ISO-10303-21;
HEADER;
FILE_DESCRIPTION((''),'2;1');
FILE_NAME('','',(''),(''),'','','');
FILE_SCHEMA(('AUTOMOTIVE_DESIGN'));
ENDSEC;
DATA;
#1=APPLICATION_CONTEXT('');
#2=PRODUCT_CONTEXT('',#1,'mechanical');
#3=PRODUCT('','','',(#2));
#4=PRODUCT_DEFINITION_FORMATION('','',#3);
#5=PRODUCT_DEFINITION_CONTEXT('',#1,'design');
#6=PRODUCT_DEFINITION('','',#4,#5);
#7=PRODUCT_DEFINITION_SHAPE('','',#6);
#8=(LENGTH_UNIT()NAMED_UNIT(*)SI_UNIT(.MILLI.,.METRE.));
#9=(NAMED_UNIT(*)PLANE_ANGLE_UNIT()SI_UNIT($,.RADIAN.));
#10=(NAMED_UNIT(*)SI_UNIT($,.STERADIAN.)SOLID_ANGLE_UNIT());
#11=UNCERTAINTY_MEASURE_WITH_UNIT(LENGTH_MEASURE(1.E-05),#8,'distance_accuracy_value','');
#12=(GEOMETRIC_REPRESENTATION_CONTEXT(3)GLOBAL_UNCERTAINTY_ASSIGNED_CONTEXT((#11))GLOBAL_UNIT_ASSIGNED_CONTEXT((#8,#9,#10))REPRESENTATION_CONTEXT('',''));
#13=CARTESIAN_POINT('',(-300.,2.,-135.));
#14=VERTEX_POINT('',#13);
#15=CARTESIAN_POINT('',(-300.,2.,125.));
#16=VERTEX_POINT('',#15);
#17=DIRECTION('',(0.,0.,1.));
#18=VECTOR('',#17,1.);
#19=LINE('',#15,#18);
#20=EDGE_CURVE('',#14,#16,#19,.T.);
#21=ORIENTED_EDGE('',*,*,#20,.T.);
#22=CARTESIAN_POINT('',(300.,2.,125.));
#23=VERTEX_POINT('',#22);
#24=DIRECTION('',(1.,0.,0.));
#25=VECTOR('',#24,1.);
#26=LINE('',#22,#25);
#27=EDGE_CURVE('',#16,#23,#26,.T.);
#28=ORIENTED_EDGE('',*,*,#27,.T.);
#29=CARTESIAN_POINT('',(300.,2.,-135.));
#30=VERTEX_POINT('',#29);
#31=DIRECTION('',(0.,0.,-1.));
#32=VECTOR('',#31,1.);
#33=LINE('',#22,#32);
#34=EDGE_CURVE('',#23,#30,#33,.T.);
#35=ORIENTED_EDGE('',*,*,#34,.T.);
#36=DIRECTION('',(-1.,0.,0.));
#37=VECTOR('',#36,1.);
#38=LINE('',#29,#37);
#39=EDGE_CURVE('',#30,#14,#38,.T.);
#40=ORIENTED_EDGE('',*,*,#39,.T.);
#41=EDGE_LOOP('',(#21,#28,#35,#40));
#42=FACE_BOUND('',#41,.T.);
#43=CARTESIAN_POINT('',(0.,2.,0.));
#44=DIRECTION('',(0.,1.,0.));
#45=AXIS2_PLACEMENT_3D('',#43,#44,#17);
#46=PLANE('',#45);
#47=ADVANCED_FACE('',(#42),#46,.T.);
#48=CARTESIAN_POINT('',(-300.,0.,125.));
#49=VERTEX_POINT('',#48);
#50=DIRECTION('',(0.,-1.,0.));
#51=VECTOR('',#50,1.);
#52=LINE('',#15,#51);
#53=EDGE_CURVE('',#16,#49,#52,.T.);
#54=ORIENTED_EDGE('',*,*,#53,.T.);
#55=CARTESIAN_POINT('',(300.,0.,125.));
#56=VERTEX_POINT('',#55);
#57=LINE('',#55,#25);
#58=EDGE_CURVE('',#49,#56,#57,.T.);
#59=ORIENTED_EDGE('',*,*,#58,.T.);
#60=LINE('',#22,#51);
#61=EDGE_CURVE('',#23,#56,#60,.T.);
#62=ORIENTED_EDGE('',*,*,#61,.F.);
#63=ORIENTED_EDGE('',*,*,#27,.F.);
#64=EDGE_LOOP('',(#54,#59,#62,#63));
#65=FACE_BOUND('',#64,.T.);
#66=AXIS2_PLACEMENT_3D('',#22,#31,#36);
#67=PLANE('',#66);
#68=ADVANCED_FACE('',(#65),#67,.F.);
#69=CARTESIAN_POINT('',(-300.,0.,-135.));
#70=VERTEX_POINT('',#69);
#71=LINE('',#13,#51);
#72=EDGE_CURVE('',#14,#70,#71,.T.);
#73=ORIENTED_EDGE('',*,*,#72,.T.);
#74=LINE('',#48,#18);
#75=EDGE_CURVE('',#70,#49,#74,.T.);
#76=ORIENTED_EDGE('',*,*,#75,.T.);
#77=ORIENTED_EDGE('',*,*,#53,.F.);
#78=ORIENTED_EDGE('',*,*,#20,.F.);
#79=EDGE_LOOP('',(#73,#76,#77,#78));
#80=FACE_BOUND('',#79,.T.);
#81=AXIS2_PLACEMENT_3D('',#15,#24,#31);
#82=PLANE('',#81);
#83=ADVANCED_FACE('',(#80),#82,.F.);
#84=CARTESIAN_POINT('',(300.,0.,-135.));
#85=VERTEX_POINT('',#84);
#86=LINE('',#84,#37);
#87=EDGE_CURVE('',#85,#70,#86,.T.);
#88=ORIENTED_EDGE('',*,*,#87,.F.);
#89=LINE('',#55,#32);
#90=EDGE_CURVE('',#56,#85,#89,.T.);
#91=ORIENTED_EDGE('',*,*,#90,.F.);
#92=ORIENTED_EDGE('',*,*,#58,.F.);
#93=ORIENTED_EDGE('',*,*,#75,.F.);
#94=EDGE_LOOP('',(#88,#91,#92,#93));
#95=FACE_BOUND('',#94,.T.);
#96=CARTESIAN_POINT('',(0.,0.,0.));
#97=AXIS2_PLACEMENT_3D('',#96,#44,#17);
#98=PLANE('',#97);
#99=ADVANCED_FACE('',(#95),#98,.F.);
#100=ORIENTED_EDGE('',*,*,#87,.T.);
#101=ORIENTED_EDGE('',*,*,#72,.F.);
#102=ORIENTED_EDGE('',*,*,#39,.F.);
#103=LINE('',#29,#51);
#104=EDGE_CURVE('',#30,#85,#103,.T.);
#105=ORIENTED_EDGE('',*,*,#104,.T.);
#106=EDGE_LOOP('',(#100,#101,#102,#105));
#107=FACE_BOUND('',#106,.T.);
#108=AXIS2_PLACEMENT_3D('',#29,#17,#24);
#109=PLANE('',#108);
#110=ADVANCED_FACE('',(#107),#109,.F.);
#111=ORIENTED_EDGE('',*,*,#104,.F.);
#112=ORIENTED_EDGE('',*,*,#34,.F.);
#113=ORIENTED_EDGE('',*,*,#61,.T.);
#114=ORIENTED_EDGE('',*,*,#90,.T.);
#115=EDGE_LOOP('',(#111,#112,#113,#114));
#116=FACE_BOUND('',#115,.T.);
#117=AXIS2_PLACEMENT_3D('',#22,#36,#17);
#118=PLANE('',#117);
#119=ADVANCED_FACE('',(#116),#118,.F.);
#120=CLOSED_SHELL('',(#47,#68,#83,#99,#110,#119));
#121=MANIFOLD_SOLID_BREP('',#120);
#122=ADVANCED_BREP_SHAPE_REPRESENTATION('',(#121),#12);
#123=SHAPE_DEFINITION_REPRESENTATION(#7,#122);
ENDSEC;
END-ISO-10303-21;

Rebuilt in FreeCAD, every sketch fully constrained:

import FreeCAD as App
import Part
import Sketcher

V = App.Vector

doc = App.newDocument("Part")
body = doc.addObject("PartDesign::Body", "Body")

sketch1 = body.newObject("Sketcher::SketchObject", "Sketch")
sketch1.AttachmentSupport = (doc.getObject("XZ_Plane"), [""])
sketch1.MapMode = "FlatFace"
sketch1.addGeometry([
    Part.LineSegment(V(-300, -135, 0), V(-300, 125, 0)),
    Part.LineSegment(V(-300, 125, 0), V(300, 125, 0)),
    Part.LineSegment(V(300, 125, 0), V(300, -135, 0)),
    Part.LineSegment(V(300, -135, 0), V(-300, -135, 0)),
], False)
sketch1.addConstraint([
    Sketcher.Constraint("Coincident", 0, 2, 1, 1),
    Sketcher.Constraint("Coincident", 1, 2, 2, 1),
    Sketcher.Constraint("Coincident", 2, 2, 3, 1),
    Sketcher.Constraint("Coincident", 3, 2, 0, 1),
    Sketcher.Constraint("Vertical", 0),
    Sketcher.Constraint("Horizontal", 1),
    Sketcher.Constraint("Vertical", 2),
    Sketcher.Constraint("Horizontal", 3),
    Sketcher.Constraint("DistanceX", 1, 1, 1, 2, 600.0),
    Sketcher.Constraint("DistanceY", 0, 1, 0, 2, 260.0),
    Sketcher.Constraint("DistanceX", 0, 2, -1, 1, 300.0),
    Sketcher.Constraint("DistanceY", -1, 1, 0, 2, 125.0),
])
pad1 = body.newObject("PartDesign::Pad", "Pad")
pad1.Profile = sketch1
pad1.Length = 2
pad1.Reversed = True

doc.recompute()
